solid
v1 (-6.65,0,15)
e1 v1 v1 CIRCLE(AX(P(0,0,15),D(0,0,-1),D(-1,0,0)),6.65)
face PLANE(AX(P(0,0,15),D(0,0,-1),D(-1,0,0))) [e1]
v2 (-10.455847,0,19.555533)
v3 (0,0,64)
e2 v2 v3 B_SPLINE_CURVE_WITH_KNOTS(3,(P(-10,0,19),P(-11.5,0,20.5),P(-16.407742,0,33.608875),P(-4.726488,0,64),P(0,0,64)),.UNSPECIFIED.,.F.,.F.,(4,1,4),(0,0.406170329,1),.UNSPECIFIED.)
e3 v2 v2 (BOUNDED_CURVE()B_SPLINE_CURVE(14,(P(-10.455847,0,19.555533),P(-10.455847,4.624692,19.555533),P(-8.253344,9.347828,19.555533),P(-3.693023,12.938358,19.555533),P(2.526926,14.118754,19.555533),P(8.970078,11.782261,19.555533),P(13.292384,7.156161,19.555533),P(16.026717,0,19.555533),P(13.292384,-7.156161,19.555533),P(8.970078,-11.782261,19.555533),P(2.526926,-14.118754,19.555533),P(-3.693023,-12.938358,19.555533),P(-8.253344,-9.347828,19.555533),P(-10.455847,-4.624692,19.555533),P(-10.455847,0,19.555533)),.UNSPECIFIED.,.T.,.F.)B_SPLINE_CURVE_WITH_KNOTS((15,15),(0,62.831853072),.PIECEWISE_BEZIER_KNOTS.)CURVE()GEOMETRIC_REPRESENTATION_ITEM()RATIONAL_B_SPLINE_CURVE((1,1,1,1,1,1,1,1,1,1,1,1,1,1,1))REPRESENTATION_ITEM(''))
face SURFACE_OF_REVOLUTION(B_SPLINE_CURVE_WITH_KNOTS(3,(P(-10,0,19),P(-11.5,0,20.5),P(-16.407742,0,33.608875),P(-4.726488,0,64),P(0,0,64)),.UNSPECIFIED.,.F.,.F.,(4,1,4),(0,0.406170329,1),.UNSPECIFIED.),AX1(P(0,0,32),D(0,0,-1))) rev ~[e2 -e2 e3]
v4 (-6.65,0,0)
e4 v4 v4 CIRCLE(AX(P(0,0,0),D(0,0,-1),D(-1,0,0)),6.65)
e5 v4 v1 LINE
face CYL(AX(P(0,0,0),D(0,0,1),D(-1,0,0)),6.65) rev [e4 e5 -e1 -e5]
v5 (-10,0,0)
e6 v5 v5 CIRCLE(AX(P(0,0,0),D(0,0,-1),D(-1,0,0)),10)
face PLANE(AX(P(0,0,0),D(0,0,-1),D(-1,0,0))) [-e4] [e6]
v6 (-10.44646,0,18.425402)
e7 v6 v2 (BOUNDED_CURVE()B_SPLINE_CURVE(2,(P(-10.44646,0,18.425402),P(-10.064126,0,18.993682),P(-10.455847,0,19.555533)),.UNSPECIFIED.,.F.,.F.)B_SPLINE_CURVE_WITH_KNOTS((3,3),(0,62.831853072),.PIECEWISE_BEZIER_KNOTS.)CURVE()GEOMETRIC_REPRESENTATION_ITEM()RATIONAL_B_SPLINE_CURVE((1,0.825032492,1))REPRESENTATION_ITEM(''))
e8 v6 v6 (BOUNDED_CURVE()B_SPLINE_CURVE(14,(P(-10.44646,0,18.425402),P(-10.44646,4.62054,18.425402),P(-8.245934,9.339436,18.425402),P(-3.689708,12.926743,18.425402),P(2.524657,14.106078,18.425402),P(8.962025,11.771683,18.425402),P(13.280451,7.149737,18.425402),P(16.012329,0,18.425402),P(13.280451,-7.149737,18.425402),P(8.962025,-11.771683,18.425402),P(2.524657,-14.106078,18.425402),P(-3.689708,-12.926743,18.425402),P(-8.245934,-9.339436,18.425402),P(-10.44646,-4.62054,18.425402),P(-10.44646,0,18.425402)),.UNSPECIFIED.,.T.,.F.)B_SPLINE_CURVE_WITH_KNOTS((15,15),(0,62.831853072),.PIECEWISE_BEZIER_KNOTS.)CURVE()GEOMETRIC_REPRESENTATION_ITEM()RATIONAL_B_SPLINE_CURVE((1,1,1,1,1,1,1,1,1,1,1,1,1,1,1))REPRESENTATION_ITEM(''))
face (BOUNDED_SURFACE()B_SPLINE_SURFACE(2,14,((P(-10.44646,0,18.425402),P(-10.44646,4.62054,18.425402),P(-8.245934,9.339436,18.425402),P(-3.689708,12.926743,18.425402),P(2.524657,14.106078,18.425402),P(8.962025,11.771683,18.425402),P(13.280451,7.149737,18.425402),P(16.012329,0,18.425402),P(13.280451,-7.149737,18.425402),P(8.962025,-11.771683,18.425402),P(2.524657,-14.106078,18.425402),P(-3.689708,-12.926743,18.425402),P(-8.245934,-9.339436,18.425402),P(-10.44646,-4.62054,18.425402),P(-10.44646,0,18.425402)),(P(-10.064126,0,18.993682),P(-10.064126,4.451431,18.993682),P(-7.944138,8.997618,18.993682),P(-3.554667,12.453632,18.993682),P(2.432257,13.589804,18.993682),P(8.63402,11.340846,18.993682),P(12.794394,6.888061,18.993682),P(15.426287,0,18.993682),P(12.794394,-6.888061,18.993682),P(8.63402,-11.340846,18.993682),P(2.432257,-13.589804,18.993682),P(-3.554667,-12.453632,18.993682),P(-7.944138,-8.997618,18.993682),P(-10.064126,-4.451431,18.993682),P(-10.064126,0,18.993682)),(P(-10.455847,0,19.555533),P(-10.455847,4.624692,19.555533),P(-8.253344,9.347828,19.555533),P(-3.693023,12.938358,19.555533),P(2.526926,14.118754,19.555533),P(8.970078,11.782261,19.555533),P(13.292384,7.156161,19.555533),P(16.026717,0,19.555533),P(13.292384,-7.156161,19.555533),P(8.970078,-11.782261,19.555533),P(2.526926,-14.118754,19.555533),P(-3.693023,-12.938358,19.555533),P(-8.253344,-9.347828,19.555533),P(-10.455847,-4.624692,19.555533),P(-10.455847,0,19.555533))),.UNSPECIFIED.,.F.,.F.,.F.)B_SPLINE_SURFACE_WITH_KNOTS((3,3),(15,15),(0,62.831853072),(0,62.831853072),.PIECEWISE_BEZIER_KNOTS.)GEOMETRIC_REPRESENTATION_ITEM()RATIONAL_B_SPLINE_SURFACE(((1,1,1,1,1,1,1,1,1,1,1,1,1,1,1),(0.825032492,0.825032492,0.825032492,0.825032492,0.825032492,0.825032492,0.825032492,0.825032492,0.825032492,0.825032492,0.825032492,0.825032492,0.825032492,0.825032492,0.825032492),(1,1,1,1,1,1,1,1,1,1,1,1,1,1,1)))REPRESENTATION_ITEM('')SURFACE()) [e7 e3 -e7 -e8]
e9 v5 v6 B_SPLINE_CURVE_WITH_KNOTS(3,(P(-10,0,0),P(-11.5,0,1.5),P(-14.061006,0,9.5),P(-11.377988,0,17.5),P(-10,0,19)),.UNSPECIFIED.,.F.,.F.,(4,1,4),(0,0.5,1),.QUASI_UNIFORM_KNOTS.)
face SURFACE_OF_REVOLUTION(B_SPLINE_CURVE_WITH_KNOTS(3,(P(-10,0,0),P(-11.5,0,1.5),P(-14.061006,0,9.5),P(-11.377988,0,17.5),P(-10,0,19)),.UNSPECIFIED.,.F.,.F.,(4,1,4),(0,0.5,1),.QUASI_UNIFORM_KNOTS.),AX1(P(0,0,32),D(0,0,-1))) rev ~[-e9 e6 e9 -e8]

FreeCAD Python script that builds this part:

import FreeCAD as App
import Part
import Sketcher

V = App.Vector


def edges_at(feature, points):
    """Names of the edges that pass closest to the given points."""
    edges = feature.Shape.Edges
    near = lambda p: min(range(len(edges)), key=lambda i: edges[i].distToShape(Part.Vertex(*p))[0])
    return sorted({f"Edge{near(p) + 1}" for p in points})

doc = App.newDocument("Part")
body = doc.addObject("PartDesign::Body", "Body")

# Sketch on XZ plane
sketch1 = body.newObject("Sketcher::SketchObject", "Sketch")
sketch1.AttachmentSupport = (doc.getObject("XZ_Plane"), [""])
sketch1.MapMode = "FlatFace"
sketch1.addGeometry(Part.BSplineCurve([V(-10, 0, 0), V(-11.5, 1.5, 0), V(-14.061006, 9.5, 0), V(-11.377988, 17.5, 0), V(-10, 19, 0)], [4, 1, 4], [0, 0.5, 1], False, 3, [1, 1, 1, 1, 1], False), False)
sketch1.addGeometry(Part.LineSegment(V(-10, 0, 0), V(-6.65, 0, 0)), False)
sketch1.addGeometry(Part.LineSegment(V(-6.65, 0, 0), V(-6.65, 15, 0)), False)
sketch1.addGeometry(Part.LineSegment(V(-6.65, 15, 0), V(0, 15, 0)), False)
sketch1.addGeometry(Part.LineSegment(V(0, 15, 0), V(0, 64, 0)), False)
sketch1.addGeometry(Part.BSplineCurve([V(-10, 19, 0), V(-11.5, 20.5, 0), V(-16.407742, 33.608875, 0), V(-4.726488, 64, 0), V(0, 64, 0)], [4, 1, 4], [0, 0.406170329, 1], False, 3, [1, 1, 1, 1, 1], False), False)
sketch1.addConstraint(Sketcher.Constraint("Block", 0))
sketch1.addConstraint(Sketcher.Constraint("Block", 5))
sketch1.addConstraint(Sketcher.Constraint("Coincident", 0, 1, 1, 1))
sketch1.addConstraint(Sketcher.Constraint("Coincident", 1, 2, 2, 1))
sketch1.addConstraint(Sketcher.Constraint("Coincident", 2, 2, 3, 1))
sketch1.addConstraint(Sketcher.Constraint("Coincident", 3, 2, 4, 1))
sketch1.addConstraint(Sketcher.Constraint("Coincident", 4, 2, 5, 2))
sketch1.addConstraint(Sketcher.Constraint("Horizontal", 1))
sketch1.addConstraint(Sketcher.Constraint("Vertical", 2))
sketch1.addConstraint(Sketcher.Constraint("Horizontal", 3))
sketch1.addConstraint(Sketcher.Constraint("Vertical", 4))
sketch1.addConstraint(Sketcher.Constraint("DistanceY", 2, 1, 2, 2, 15.0))
sketch1.addConstraint(Sketcher.Constraint("DistanceX", 1, 1, 1, 2, 3.35))
revolution = body.newObject("PartDesign::Revolution", "Revolution")
revolution.Profile = sketch1
revolution.ReferenceAxis = (sketch1, ["V_Axis"])
revolution.Angle = 360
doc.recompute()

fillet = body.newObject("PartDesign::Fillet", "Fillet")
fillet.Base = (revolution, edges_at(revolution, [(10, 0, 19)]))
fillet.Radius = 1

doc.recompute()
